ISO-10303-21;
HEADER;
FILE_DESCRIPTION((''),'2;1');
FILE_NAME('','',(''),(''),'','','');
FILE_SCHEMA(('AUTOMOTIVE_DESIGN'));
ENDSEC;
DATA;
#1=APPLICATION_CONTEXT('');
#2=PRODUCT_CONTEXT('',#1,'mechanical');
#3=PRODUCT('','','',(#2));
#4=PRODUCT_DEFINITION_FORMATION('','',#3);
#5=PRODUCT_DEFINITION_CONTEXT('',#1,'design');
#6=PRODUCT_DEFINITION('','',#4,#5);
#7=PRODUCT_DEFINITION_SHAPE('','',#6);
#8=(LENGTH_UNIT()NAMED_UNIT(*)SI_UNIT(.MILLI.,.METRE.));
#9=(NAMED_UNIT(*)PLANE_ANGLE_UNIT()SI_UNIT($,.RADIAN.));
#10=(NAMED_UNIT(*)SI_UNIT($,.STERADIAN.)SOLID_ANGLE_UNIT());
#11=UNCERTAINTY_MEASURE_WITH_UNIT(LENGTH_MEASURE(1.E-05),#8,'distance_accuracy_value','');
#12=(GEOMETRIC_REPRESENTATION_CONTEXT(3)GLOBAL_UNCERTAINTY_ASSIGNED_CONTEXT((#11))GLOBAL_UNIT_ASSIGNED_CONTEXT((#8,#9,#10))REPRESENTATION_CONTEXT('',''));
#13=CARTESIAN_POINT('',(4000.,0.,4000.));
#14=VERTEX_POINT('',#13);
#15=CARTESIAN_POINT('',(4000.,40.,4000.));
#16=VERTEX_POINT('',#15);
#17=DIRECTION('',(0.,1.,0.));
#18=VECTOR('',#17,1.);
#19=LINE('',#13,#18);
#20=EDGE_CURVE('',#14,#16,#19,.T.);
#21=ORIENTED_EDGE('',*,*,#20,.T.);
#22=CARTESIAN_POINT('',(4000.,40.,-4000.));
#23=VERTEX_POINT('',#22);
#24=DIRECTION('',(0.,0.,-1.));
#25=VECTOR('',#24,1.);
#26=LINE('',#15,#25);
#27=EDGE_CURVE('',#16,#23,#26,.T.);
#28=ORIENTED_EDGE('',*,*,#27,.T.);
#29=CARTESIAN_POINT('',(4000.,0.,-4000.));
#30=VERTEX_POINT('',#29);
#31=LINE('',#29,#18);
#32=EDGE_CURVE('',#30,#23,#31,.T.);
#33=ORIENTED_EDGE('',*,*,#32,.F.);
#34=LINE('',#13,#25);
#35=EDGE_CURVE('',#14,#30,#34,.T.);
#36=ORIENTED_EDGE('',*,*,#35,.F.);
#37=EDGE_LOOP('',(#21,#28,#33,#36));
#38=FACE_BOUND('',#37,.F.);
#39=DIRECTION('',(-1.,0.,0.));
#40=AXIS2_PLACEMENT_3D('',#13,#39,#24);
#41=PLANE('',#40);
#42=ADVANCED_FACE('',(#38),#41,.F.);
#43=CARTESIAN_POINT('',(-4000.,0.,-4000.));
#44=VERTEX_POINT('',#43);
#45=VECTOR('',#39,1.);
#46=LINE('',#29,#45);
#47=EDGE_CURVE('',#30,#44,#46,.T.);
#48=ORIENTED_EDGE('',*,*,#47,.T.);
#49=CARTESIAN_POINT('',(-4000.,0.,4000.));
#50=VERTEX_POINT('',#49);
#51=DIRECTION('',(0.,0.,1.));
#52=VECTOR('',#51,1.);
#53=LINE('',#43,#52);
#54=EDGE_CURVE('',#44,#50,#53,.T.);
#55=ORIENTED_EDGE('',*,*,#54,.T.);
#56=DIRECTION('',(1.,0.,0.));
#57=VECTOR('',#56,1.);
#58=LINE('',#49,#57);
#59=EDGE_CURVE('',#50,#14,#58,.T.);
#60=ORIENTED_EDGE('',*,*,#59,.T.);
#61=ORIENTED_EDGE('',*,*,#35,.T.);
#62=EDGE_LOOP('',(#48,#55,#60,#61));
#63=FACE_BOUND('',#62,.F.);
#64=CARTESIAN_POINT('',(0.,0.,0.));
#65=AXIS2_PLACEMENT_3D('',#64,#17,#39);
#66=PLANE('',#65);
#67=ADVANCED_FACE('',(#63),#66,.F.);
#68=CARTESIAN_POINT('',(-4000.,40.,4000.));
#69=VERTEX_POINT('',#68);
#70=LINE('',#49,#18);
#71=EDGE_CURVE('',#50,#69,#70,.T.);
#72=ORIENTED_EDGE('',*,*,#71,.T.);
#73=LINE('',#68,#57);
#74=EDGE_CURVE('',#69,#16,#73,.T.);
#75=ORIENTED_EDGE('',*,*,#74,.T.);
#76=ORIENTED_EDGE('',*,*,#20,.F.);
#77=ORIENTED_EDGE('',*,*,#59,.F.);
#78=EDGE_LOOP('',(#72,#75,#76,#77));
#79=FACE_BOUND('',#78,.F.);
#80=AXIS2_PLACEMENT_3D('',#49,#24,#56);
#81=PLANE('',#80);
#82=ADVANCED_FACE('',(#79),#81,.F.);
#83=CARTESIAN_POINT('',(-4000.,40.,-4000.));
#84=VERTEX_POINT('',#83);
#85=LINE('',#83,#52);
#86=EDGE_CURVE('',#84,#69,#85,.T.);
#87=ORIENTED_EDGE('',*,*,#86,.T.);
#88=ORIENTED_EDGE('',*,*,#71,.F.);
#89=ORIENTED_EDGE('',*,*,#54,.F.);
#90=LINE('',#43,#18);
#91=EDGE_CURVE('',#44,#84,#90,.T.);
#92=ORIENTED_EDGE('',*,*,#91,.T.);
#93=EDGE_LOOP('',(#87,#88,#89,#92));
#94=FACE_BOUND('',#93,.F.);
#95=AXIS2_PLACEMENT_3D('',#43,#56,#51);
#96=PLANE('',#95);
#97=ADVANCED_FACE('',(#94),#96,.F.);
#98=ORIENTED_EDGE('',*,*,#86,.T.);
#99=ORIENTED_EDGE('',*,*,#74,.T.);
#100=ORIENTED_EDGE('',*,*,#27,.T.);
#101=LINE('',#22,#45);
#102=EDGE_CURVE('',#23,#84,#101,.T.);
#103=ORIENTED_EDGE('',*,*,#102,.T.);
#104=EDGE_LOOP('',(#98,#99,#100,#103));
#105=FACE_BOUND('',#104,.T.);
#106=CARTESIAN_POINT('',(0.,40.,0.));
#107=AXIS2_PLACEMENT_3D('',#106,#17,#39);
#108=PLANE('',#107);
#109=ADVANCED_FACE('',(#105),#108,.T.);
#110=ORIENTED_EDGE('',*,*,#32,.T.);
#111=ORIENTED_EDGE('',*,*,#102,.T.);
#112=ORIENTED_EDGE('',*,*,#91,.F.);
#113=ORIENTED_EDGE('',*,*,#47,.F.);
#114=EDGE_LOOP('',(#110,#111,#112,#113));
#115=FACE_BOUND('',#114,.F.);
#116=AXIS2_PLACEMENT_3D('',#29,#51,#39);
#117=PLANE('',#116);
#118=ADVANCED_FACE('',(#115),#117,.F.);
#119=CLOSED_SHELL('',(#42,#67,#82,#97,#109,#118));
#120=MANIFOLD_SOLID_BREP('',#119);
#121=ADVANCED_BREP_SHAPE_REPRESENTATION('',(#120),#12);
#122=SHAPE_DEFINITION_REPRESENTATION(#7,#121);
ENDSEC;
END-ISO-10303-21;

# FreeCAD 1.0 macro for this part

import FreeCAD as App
import Part
import Sketcher
Q = App.Units.Quantity

doc = App.newDocument("Part")
params = doc.addObject("Spreadsheet::Sheet", "Params")
for row, (alias, value) in enumerate([
    ("sketch1_width", "8000 mm"),
    ("pad1_length", "40 mm"),
], start=1):
    params.set(f"A{row}", alias)
    params.set(f"B{row}", "=" + value)
    params.setAlias(f"B{row}", alias)

body = doc.addObject("PartDesign::Body", "Body")

# Sketch on XZ plane
sketch1 = doc.addObject("Sketcher::SketchObject", "Sketch")
body.addObject(sketch1)
sketch1.AttachmentSupport = (doc.XZ_Plane, [""])
sketch1.MapMode = "FlatFace"
sketch1.addGeometry(Part.LineSegment(App.Vector(-4000, -4000, 0), App.Vector(-4000, 4000, 0)), False)
sketch1.addGeometry(Part.LineSegment(App.Vector(-4000, 4000, 0), App.Vector(4000, 4000, 0)), False)
sketch1.addGeometry(Part.LineSegment(App.Vector(4000, 4000, 0), App.Vector(4000, -4000, 0)), False)
sketch1.addGeometry(Part.LineSegment(App.Vector(4000, -4000, 0), App.Vector(-4000, -4000, 0)), False)
sketch1.addConstraint(Sketcher.Constraint("Coincident", 0, 2, 1, 1))
sketch1.addConstraint(Sketcher.Constraint("Coincident", 1, 2, 2, 1))
sketch1.addConstraint(Sketcher.Constraint("Coincident", 2, 2, 3, 1))
sketch1.addConstraint(Sketcher.Constraint("Coincident", 3, 2, 0, 1))
sketch1.addConstraint(Sketcher.Constraint("Vertical", 0))
sketch1.addConstraint(Sketcher.Constraint("Horizontal", 1))
sketch1.addConstraint(Sketcher.Constraint("Vertical", 2))
sketch1.addConstraint(Sketcher.Constraint("Horizontal", 3))
sketch1.addConstraint(Sketcher.Constraint("Symmetric", 0, 2, 2, 2, -1, 1))
sketch1.addConstraint(Sketcher.Constraint("Equal", 3, 0))
sketch1.addConstraint(Sketcher.Constraint("DistanceX", 1, 1, 1, 2, Q("8000 mm")))
sketch1.setExpression("Constraints[10]", "Params.sketch1_width")
pad1 = doc.addObject("PartDesign::Pad", "Pad")
body.addObject(pad1)
pad1.Profile = sketch1
pad1.setExpression("Length", "Params.pad1_length")
pad1.Reversed = True

doc.recompute()
